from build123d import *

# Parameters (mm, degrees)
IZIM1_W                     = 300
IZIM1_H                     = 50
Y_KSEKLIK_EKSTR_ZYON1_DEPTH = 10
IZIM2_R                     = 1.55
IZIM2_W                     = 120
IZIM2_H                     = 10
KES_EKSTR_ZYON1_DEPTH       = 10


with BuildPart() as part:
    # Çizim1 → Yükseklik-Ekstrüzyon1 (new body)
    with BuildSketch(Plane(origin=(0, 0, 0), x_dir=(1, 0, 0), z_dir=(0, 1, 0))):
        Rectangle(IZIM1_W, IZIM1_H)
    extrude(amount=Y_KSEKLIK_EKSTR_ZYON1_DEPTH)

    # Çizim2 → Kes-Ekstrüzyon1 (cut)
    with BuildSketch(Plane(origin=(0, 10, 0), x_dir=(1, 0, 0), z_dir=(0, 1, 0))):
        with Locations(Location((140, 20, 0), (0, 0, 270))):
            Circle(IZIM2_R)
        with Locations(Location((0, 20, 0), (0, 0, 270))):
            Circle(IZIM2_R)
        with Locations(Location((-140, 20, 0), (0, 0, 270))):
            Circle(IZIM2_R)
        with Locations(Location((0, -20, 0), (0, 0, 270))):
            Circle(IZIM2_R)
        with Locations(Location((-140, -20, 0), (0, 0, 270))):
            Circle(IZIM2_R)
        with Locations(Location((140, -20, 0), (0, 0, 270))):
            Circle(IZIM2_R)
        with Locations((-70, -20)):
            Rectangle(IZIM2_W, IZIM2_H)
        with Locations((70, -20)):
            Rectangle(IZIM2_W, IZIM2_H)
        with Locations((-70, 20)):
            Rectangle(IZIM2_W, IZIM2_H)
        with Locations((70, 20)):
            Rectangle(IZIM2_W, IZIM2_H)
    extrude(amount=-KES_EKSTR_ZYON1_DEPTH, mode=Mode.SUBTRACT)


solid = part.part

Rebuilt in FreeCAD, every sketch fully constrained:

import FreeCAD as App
import Part
import Sketcher
from FreeCAD import Vector


def add_polygon(sketch, points):
    """Adds a closed chain of lines whose ends are joined by coincident constraints."""
    first, n = sketch.GeometryCount, len(points)
    for a, b in zip(points, points[1:] + points[:1]):
        sketch.addGeometry(Part.LineSegment(App.Vector(*a, 0), App.Vector(*b, 0)), False)
    for i in range(n):
        sketch.addConstraint(Sketcher.Constraint("Coincident", first + i, 2, first + (i + 1) % n, 1))

doc = App.newDocument("Part")
body = doc.addObject("PartDesign::Body", "Body")

# Sketch on XZ plane
sketch1 = body.newObject("Sketcher::SketchObject", "Sketch")
sketch1.AttachmentSupport = (doc.getObject("XZ_Plane"), [""])
sketch1.MapMode = "FlatFace"
add_polygon(sketch1, [(-150, -25), (-150, 25), (150, 25), (150, -25)])  # lines 0-3
sketch1.addConstraint(Sketcher.Constraint("Vertical", 0))
sketch1.addConstraint(Sketcher.Constraint("Horizontal", 1))
sketch1.addConstraint(Sketcher.Constraint("Vertical", 2))
sketch1.addConstraint(Sketcher.Constraint("Horizontal", 3))
sketch1.addConstraint(Sketcher.Constraint("Symmetric", 0, 2, 2, 2, -1, 1))
sketch1.addConstraint(Sketcher.Constraint("DistanceX", 1, 1, 1, 2, 300.0))
sketch1.addConstraint(Sketcher.Constraint("DistanceY", 0, 1, 0, 2, 50.0))
pad1 = body.newObject("PartDesign::Pad", "Pad")
pad1.Profile = sketch1
pad1.Length = 10
pad1.Reversed = True

# Sketch on XZ plane
sketch2 = body.newObject("Sketcher::SketchObject", "Sketch001")
sketch2.AttachmentSupport = (doc.getObject("XZ_Plane"), [""])
sketch2.MapMode = "FlatFace"
sketch2.AttachmentOffset = App.Placement(Vector(0, 0, -10), App.Rotation())
sketch2.addGeometry(Part.Circle(Vector(140, -20, 0), Vector(0, 0, 1), 1.6), False)  # 0
sketch2.addGeometry(Part.Circle(Vector(0, -20, 0), Vector(0, 0, 1), 1.6), False)  # 1
sketch2.addGeometry(Part.Circle(Vector(-140, -20, 0), Vector(0, 0, 1), 1.6), False)  # 2
sketch2.addGeometry(Part.Circle(Vector(0, 20, 0), Vector(0, 0, 1), 1.6), False)  # 3
sketch2.addGeometry(Part.Circle(Vector(-140, 20, 0), Vector(0, 0, 1), 1.6), False)  # 4
sketch2.addGeometry(Part.Circle(Vector(140, 20, 0), Vector(0, 0, 1), 1.6), False)  # 5
add_polygon(sketch2, [(-130, 15), (-130, 25), (-10, 25), (-10, 15)])  # lines 6-9
add_polygon(sketch2, [(10, 15), (10, 25), (130, 25), (130, 15)])  # lines 10-13
add_polygon(sketch2, [(-130, -25), (-130, -15), (-10, -15), (-10, -25)])  # lines 14-17
add_polygon(sketch2, [(10, -25), (10, -15), (130, -15), (130, -25)])  # lines 18-21
sketch2.addConstraint(Sketcher.Constraint("Vertical", 6))
sketch2.addConstraint(Sketcher.Constraint("Horizontal", 7))
sketch2.addConstraint(Sketcher.Constraint("Vertical", 8))
sketch2.addConstraint(Sketcher.Constraint("Horizontal", 9))
sketch2.addConstraint(Sketcher.Constraint("Vertical", 10))
sketch2.addConstraint(Sketcher.Constraint("Horizontal", 11))
sketch2.addConstraint(Sketcher.Constraint("Vertical", 12))
sketch2.addConstraint(Sketcher.Constraint("Horizontal", 13))
sketch2.addConstraint(Sketcher.Constraint("Vertical", 14))
sketch2.addConstraint(Sketcher.Constraint("Horizontal", 15))
sketch2.addConstraint(Sketcher.Constraint("Vertical", 16))
sketch2.addConstraint(Sketcher.Constraint("Horizontal", 17))
sketch2.addConstraint(Sketcher.Constraint("Vertical", 18))
sketch2.addConstraint(Sketcher.Constraint("Horizontal", 19))
sketch2.addConstraint(Sketcher.Constraint("Vertical", 20))
sketch2.addConstraint(Sketcher.Constraint("Horizontal", 21))
sketch2.addConstraint(Sketcher.Constraint("Equal", 0, 1))
sketch2.addConstraint(Sketcher.Constraint("Equal", 1, 2))
sketch2.addConstraint(Sketcher.Constraint("Equal", 2, 3))
sketch2.addConstraint(Sketcher.Constraint("Equal", 3, 4))
sketch2.addConstraint(Sketcher.Constraint("Equal", 4, 5))
sketch2.addConstraint(Sketcher.Constraint("Symmetric", 1, 3, 3, 3, -1, 1))
sketch2.addConstraint(Sketcher.Constraint("Symmetric", 0, 3, 4, 3, -1, 1))
sketch2.addConstraint(Sketcher.Constraint("Symmetric", 2, 3, 5, 3, -1, 1))
sketch2.addConstraint(Sketcher.Constraint("Symmetric", 12, 2, 14, 2, -1, 1))
sketch2.addConstraint(Sketcher.Constraint("Symmetric", 10, 2, 16, 2, -1, 1))
sketch2.addConstraint(Sketcher.Constraint("Symmetric", 8, 2, 18, 2, -1, 1))
sketch2.addConstraint(Sketcher.Constraint("Symmetric", 6, 2, 20, 2, -1, 1))
sketch2.addConstraint(Sketcher.Constraint("Symmetric", 0, 3, 2, 3, -2))
sketch2.addConstraint(Sketcher.Constraint("Symmetric", 7, 2, 10, 2, -2))
sketch2.addConstraint(Sketcher.Constraint("Symmetric", 9, 2, 12, 2, -2))
sketch2.addConstraint(Sketcher.Constraint("PointOnObject", 1, 3, -2))
sketch2.addConstraint(Sketcher.Constraint("Horizontal", 0, 3, 1, 3))
sketch2.addConstraint(Sketcher.Constraint("Diameter", 0, 3.1))
sketch2.addConstraint(Sketcher.Constraint("DistanceX", 7, 1, 7, 2, 120.0))
sketch2.addConstraint(Sketcher.Constraint("DistanceY", 6, 1, 6, 2, 10.0))
sketch2.addConstraint(Sketcher.Constraint("DistanceX", -1, 1, 0, 3, 140.0))
sketch2.addConstraint(Sketcher.Constraint("DistanceY", 0, 3, -1, 1, 20.0))
sketch2.addConstraint(Sketcher.Constraint("DistanceX", 6, 2, -1, 1, 130.0))
sketch2.addConstraint(Sketcher.Constraint("DistanceY", -1, 1, 6, 2, 25.0))
pocket1 = body.newObject("PartDesign::Pocket", "Pocket")
pocket1.Profile = sketch2
pocket1.Length = 10
pocket1.Reversed = True

doc.recompute()
